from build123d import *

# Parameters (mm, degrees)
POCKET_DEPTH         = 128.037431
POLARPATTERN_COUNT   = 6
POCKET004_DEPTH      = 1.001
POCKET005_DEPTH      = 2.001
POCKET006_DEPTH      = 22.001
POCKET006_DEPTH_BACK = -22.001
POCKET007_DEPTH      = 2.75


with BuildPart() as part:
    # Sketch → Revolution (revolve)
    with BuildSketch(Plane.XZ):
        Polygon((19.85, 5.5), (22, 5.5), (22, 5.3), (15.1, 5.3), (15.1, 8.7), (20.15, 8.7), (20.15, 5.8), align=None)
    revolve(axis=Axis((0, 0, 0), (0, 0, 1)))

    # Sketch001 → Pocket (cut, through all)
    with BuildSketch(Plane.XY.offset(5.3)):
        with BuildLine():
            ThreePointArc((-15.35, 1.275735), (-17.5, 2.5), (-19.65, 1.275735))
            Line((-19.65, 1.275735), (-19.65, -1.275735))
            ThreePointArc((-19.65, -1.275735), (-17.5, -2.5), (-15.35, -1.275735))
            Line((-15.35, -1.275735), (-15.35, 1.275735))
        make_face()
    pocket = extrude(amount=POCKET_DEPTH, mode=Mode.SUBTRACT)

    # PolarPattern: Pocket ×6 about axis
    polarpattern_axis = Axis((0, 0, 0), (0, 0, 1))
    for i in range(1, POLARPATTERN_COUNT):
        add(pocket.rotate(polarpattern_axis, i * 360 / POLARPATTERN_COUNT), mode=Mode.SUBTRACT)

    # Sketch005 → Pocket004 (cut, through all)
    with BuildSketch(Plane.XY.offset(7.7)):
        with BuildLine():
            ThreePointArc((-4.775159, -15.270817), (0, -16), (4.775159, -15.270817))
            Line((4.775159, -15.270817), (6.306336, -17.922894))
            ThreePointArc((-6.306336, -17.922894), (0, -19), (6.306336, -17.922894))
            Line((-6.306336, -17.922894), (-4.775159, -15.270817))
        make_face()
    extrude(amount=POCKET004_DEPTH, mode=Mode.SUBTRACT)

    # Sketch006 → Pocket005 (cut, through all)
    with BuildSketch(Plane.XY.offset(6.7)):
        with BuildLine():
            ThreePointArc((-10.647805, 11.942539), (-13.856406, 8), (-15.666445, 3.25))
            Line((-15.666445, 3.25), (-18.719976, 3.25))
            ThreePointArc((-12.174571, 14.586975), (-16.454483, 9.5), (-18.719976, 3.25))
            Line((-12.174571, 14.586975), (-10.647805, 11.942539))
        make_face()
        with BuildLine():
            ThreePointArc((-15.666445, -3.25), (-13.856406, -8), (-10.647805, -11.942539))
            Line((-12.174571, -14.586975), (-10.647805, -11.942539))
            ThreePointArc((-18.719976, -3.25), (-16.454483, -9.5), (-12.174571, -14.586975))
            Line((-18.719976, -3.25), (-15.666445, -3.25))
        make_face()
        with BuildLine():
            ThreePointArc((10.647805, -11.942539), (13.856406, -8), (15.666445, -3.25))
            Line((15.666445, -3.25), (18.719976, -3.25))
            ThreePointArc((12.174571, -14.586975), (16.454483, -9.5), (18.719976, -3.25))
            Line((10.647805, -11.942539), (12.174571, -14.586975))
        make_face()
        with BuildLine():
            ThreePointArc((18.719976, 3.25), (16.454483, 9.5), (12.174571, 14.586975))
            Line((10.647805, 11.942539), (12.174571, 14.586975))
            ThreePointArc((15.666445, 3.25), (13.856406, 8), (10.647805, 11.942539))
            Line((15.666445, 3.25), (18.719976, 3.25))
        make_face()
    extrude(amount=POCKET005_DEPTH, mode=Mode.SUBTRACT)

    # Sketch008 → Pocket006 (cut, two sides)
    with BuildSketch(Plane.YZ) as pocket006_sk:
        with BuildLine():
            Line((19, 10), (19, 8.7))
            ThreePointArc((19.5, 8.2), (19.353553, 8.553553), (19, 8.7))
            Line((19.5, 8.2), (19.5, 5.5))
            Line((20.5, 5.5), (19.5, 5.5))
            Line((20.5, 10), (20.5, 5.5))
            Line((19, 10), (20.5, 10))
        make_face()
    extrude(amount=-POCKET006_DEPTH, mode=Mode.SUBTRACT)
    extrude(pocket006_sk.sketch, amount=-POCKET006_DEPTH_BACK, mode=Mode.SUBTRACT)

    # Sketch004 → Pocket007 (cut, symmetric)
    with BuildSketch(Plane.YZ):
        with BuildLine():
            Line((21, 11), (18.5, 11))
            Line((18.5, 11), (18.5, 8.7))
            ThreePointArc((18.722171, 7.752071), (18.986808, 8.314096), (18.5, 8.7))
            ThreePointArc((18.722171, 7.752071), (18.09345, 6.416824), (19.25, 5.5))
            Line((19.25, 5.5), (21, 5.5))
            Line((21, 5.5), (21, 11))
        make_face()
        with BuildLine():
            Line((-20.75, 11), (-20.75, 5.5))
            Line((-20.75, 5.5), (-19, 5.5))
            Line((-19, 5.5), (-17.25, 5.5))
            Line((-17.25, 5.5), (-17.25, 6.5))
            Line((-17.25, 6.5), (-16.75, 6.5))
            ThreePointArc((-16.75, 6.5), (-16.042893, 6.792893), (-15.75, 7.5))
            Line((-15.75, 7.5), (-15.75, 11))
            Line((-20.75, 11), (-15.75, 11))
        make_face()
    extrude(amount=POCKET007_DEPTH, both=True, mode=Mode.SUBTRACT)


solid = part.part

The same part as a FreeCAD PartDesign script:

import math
import FreeCAD as App
import Part
import Sketcher

V = App.Vector
Q = App.Units.Quantity

doc = App.newDocument("Part")
body = doc.addObject("PartDesign::Body", "Body")

sketch1 = body.newObject("Sketcher::SketchObject", "Sketch")
sketch1.AttachmentSupport = (doc.getObject("XZ_Plane"), [""])
sketch1.MapMode = "FlatFace"
sketch1.addGeometry([
    Part.LineSegment(V(22, 5.5, 0), V(19.85, 5.5, 0)),
    Part.LineSegment(V(19.85, 5.5, 0), V(20.15, 5.8, 0)),
    Part.LineSegment(V(20.15, 5.8, 0), V(20.15, 8.7, 0)),
    Part.LineSegment(V(20.15, 8.7, 0), V(15.1, 8.7, 0)),
    Part.LineSegment(V(15.1, 8.7, 0), V(15.1, 5.3, 0)),
    Part.LineSegment(V(15.1, 5.3, 0), V(22, 5.3, 0)),
    Part.LineSegment(V(22, 5.3, 0), V(22, 5.5, 0)),
], False)
sketch1.addConstraint([
    Sketcher.Constraint("Coincident", 0, 2, 1, 1),
    Sketcher.Constraint("Coincident", 1, 2, 2, 1),
    Sketcher.Constraint("Coincident", 2, 2, 3, 1),
    Sketcher.Constraint("Coincident", 3, 2, 4, 1),
    Sketcher.Constraint("Coincident", 4, 2, 5, 1),
    Sketcher.Constraint("Coincident", 5, 2, 6, 1),
    Sketcher.Constraint("Coincident", 6, 2, 0, 1),
    Sketcher.Constraint("Horizontal", 0),
    Sketcher.Constraint("Vertical", 2),
    Sketcher.Constraint("Horizontal", 3),
    Sketcher.Constraint("Vertical", 4),
    Sketcher.Constraint("Horizontal", 5),
    Sketcher.Constraint("Vertical", 6),
    Sketcher.Constraint("Angle", 1, Q("45 deg")),
    Sketcher.Constraint("DistanceX", 5, 1, 5, 2, Q("6.9 mm")),
    Sketcher.Constraint("DistanceY", 2, 1, 2, 2, Q("2.9 mm")),
    Sketcher.Constraint("DistanceY", 4, 2, 4, 1, Q("3.4 mm")),
    Sketcher.Constraint("DistanceY", 6, 1, 6, 2, Q("0.2 mm")),
    Sketcher.Constraint("DistanceX", -1, 1, 5, 2, Q("22 mm")),
    Sketcher.Constraint("DistanceX", 0, 2, 0, 1, Q("2.15 mm")),
    Sketcher.Constraint("DistanceY", -1, 1, 0, 2, Q("5.5 mm")),
])
revolution = body.newObject("PartDesign::Revolution", "Revolution")
revolution.Profile = sketch1
revolution.ReferenceAxis = (sketch1, ["V_Axis"])
revolution.Angle = 360

sketch2 = body.newObject("Sketcher::SketchObject", "Sketch001")
sketch2.AttachmentSupport = (doc.getObject("XY_Plane"), [""])
sketch2.MapMode = "FlatFace"
sketch2.AttachmentOffset = App.Placement(V(0, 0, 5.3), App.Rotation())
sketch2.addGeometry([
    Part.ArcOfCircle(Part.Circle(V(-17.5, 0, 0), V(0, 0, 1), 2.5), math.radians(31), math.radians(149)),
    Part.LineSegment(V(-19.6, 1.3, 0), V(-19.6, -1.3, 0)),
    Part.ArcOfCircle(Part.Circle(V(-17.5, 0, 0), V(0, 0, 1), 2.5), math.radians(-149), math.radians(-31)),
    Part.LineSegment(V(-15.3, -1.3, 0), V(-15.3, 1.3, 0)),
], False)
sketch2.addConstraint([
    Sketcher.Constraint("Coincident", 0, 2, 1, 1),
    Sketcher.Constraint("Coincident", 1, 2, 2, 1),
    Sketcher.Constraint("Coincident", 2, 2, 3, 1),
    Sketcher.Constraint("Coincident", 3, 2, 0, 1),
    Sketcher.Constraint("Vertical", 1),
    Sketcher.Constraint("Vertical", 3),
    Sketcher.Constraint("Coincident", 2, 3, 0, 3),
    Sketcher.Constraint("Equal", 0, 2),
    Sketcher.Constraint("PointOnObject", 0, 3, -1),
    Sketcher.Constraint("Horizontal", 1, 2, 2, 2),
    Sketcher.Constraint("Radius", 0, Q("2.5 mm")),
    Sketcher.Constraint("DistanceX", 0, 3, -1, 1, Q("17.5 mm")),
    Sketcher.Constraint("DistanceX", 1, 2, 2, 2, Q("4.3 mm")),
])
pocket1 = body.newObject("PartDesign::Pocket", "Pocket")
pocket1.Profile = sketch2
pocket1.Type = "ThroughAll"
pocket1.Reversed = True
doc.recompute()

polarpattern = body.newObject("PartDesign::PolarPattern", "PolarPattern")
polarpattern.Originals = [pocket1]
polarpattern.Axis = (doc.getObject("Z_Axis"), [""])
polarpattern.Angle = 360
polarpattern.Occurrences = 6
body.Tip = polarpattern

sketch3 = body.newObject("Sketcher::SketchObject", "Sketch002")
sketch3.AttachmentSupport = (doc.getObject("XY_Plane"), [""])
sketch3.MapMode = "FlatFace"
sketch3.AttachmentOffset = App.Placement(V(0, 0, 7.7), App.Rotation())
sketch3.addGeometry([
    Part.ArcOfCircle(Part.Circle(V(0, 0, 0), V(0, 0, 1), 16), math.radians(-107), math.radians(-73)),
    Part.LineSegment(V(-4.8, -15.3, 0), V(-6.3, -17.9, 0)),
    Part.ArcOfCircle(Part.Circle(V(0, 0, 0), V(0, 0, 1), 19), math.radians(-109), math.radians(-71)),
    Part.LineSegment(V(6.3, -17.9, 0), V(4.8, -15.3, 0)),
], False)
sketch3.addConstraint([
    Sketcher.Constraint("Coincident", 0, 1, 1, 1),
    Sketcher.Constraint("Coincident", 1, 2, 2, 1),
    Sketcher.Constraint("Coincident", 2, 2, 3, 1),
    Sketcher.Constraint("Coincident", 3, 2, 0, 2),
    Sketcher.Constraint("Coincident", 0, 3, -1, 1),
    Sketcher.Constraint("Coincident", 2, 3, -1, 1),
    Sketcher.Constraint("Horizontal", 1, 2, 2, 2),
    Sketcher.Constraint("Horizontal", 0, 1, 3, 2),
    Sketcher.Constraint("Radius", 2, Q("19.000001 mm")),
    Sketcher.Constraint("Angle", 1, Q("-119.999994 deg")),
    Sketcher.Constraint("Radius", 0, Q("15.999997 mm")),
    Sketcher.Constraint("DistanceX", 0, 1, -1, 1, Q("4.775159 mm")),
])
pocket2 = body.newObject("PartDesign::Pocket", "Pocket001")
pocket2.Profile = sketch3
pocket2.Type = "ThroughAll"
pocket2.Reversed = True

sketch4 = body.newObject("Sketcher::SketchObject", "Sketch003")
sketch4.AttachmentSupport = (doc.getObject("XY_Plane"), [""])
sketch4.MapMode = "FlatFace"
sketch4.AttachmentOffset = App.Placement(V(0, 0, 6.7), App.Rotation())
sketch4.addGeometry([
    Part.ArcOfCircle(Part.Circle(V(0, 0, 0), V(0, 0, 1), 16), math.radians(132), math.radians(168)),
    Part.LineSegment(V(-10.6, 11.9, 0), V(-12.2, 14.6, 0)),
    Part.ArcOfCircle(Part.Circle(V(0, 0, 0), V(0, 0, 1), 19), math.radians(130), math.radians(170)),
    Part.LineSegment(V(-18.7, 3.2, 0), V(-15.7, 3.2, 0)),
    Part.ArcOfCircle(Part.Circle(V(0, 0, 0), V(0, 0, 1), 16), math.radians(-168), math.radians(-132)),
    Part.LineSegment(V(-15.7, -3.2, 0), V(-18.7, -3.2, 0)),
    Part.ArcOfCircle(Part.Circle(V(0, 0, 0), V(0, 0, 1), 19), math.radians(-170), math.radians(-130)),
    Part.LineSegment(V(-12.2, -14.6, 0), V(-10.6, -11.9, 0)),
    Part.ArcOfCircle(Part.Circle(V(0, 0, 0), V(0, 0, 1), 16), math.radians(-48), math.radians(-12)),
    Part.LineSegment(V(10.6, -11.9, 0), V(12.2, -14.6, 0)),
    Part.ArcOfCircle(Part.Circle(V(0, 0, 0), V(0, 0, 1), 19), math.radians(-50), math.radians(-10)),
    Part.LineSegment(V(18.7, -3.2, 0), V(15.7, -3.2, 0)),
    Part.ArcOfCircle(Part.Circle(V(0, 0, 0), V(0, 0, 1), 19), math.radians(10), math.radians(50)),
    Part.LineSegment(V(12.2, 14.6, 0), V(10.6, 11.9, 0)),
    Part.ArcOfCircle(Part.Circle(V(0, 0, 0), V(0, 0, 1), 16), math.radians(12), math.radians(48)),
    Part.LineSegment(V(15.7, 3.2, 0), V(18.7, 3.2, 0)),
], False)
sketch4.addConstraint([
    Sketcher.Constraint("Coincident", 0, 1, 1, 1),
    Sketcher.Constraint("Coincident", 1, 2, 2, 1),
    Sketcher.Constraint("Coincident", 2, 2, 3, 1),
    Sketcher.Constraint("Coincident", 3, 2, 0, 2),
    Sketcher.Constraint("Coincident", 4, 1, 5, 1),
    Sketcher.Constraint("Coincident", 5, 2, 6, 1),
    Sketcher.Constraint("Coincident", 6, 2, 7, 1),
    Sketcher.Constraint("Coincident", 7, 2, 4, 2),
    Sketcher.Constraint("Coincident", 8, 1, 9, 1),
    Sketcher.Constraint("Coincident", 9, 2, 10, 1),
    Sketcher.Constraint("Coincident", 10, 2, 11, 1),
    Sketcher.Constraint("Coincident", 11, 2, 8, 2),
    Sketcher.Constraint("Coincident", 12, 2, 13, 1),
    Sketcher.Constraint("Coincident", 13, 2, 14, 2),
    Sketcher.Constraint("Coincident", 14, 1, 15, 1),
    Sketcher.Constraint("Coincident", 15, 2, 12, 1),
    Sketcher.Constraint("Horizontal", 3),
    Sketcher.Constraint("Horizontal", 5),
    Sketcher.Constraint("Horizontal", 11),
    Sketcher.Constraint("Horizontal", 15),
    Sketcher.Constraint("Coincident", 0, 3, -1, 1),
    Sketcher.Constraint("Coincident", 2, 3, -1, 1),
    Sketcher.Constraint("Coincident", 4, 3, -1, 1),
    Sketcher.Constraint("Coincident", 6, 3, -1, 1),
    Sketcher.Constraint("Coincident", 8, 3, -1, 1),
    Sketcher.Constraint("Coincident", 10, 3, -1, 1),
    Sketcher.Constraint("Coincident", 12, 3, -1, 1),
    Sketcher.Constraint("Coincident", 14, 3, -1, 1),
    Sketcher.Constraint("Equal", 0, 4),
    Sketcher.Constraint("Equal", 2, 6),
    Sketcher.Constraint("Equal", 4, 8),
    Sketcher.Constraint("Equal", 6, 10),
    Sketcher.Constraint("Equal", 10, 12),
    Sketcher.Constraint("Equal", 8, 14),
    Sketcher.Constraint("Parallel", 1, 9),
    Sketcher.Constraint("Parallel", 7, 13),
    Sketcher.Constraint("Horizontal", 7, 2, 8, 1),
    Sketcher.Constraint("Horizontal", 6, 2, 9, 2),
    Sketcher.Constraint("Horizontal", 5, 2, 10, 2),
    Sketcher.Constraint("Horizontal", 1, 2, 12, 2),
    Sketcher.Constraint("Horizontal", 3, 2, 14, 1),
    Sketcher.Constraint("Vertical", 3, 2, 4, 1),
    Sketcher.Constraint("Vertical", 1, 2, 6, 2),
    Sketcher.Constraint("Radius", 2, Q("19 mm")),
    Sketcher.Constraint("Angle", 1, Q("120.000003 deg")),
    Sketcher.Constraint("DistanceY", 4, 1, 3, 2, Q("6.5 mm")),
    Sketcher.Constraint("Radius", 0, Q("16.000004 mm")),
    Sketcher.Constraint("DistanceX", 0, 1, 8, 3, Q("10.647802 mm")),
])
pocket3 = body.newObject("PartDesign::Pocket", "Pocket002")
pocket3.Profile = sketch4
pocket3.Type = "ThroughAll"
pocket3.Reversed = True

sketch5 = body.newObject("Sketcher::SketchObject", "Sketch004")
sketch5.AttachmentSupport = (doc.getObject("YZ_Plane"), [""])
sketch5.MapMode = "FlatFace"
sketch5.addGeometry([
    Part.LineSegment(V(19, 10, 0), V(19, 8.7, 0)),
    Part.ArcOfCircle(Part.Circle(V(19, 8.2, 0), V(0, 0, 1), 0.5), math.radians(0), math.radians(90)),
    Part.LineSegment(V(19.5, 8.2, 0), V(19.5, 5.5, 0)),
    Part.LineSegment(V(19.5, 5.5, 0), V(20.5, 5.5, 0)),
    Part.LineSegment(V(20.5, 5.5, 0), V(20.5, 10, 0)),
    Part.LineSegment(V(20.5, 10, 0), V(19, 10, 0)),
], False)
sketch5.addConstraint([
    Sketcher.Constraint("Coincident", 0, 2, 1, 2),
    Sketcher.Constraint("Coincident", 1, 1, 2, 1),
    Sketcher.Constraint("Coincident", 2, 2, 3, 1),
    Sketcher.Constraint("Coincident", 3, 2, 4, 1),
    Sketcher.Constraint("Coincident", 4, 2, 5, 1),
    Sketcher.Constraint("Coincident", 5, 2, 0, 1),
    Sketcher.Constraint("Vertical", 0),
    Sketcher.Constraint("Vertical", 2),
    Sketcher.Constraint("Horizontal", 3),
    Sketcher.Constraint("Vertical", 4),
    Sketcher.Constraint("Horizontal", 5),
    Sketcher.Constraint("Vertical", 1, 3, 0, 2),
    Sketcher.Constraint("Radius", 1, Q("0.500001 mm")),
    Sketcher.Constraint("DistanceX", 3, 1, 3, 2, Q("1 mm")),
    Sketcher.Constraint("DistanceY", 0, 2, 0, 1, Q("1.3 mm")),
    Sketcher.Constraint("DistanceY", 2, 2, 2, 1, Q("2.7 mm")),
    Sketcher.Constraint("DistanceY", 4, 1, 4, 2, Q("4.5 mm")),
    Sketcher.Constraint("DistanceX", -1, 1, 1, 3, Q("18.999999 mm")),
    Sketcher.Constraint("DistanceY", -1, 1, 4, 2, Q("10 mm")),
])
pocket4 = body.newObject("PartDesign::Pocket", "Pocket003")
pocket4.Profile = sketch5
pocket4.Type = "ThroughAll"
pocket4.Midplane = True

sketch6 = body.newObject("Sketcher::SketchObject", "Sketch005")
sketch6.AttachmentSupport = (doc.getObject("YZ_Plane"), [""])
sketch6.MapMode = "FlatFace"
sketch6.addGeometry([
    Part.LineSegment(V(21, 11, 0), V(18.5, 11, 0)),
    Part.LineSegment(V(18.5, 11, 0), V(18.5, 8.7, 0)),
    Part.ArcOfCircle(Part.Circle(V(18.5, 8.2, 0), V(0, 0, 1), 0.5), math.radians(-64), math.radians(90)),
    Part.ArcOfCircle(Part.Circle(V(19.2, 6.7, 0), V(0, 0, 1), 1.2), math.radians(116), math.radians(270)),
    Part.LineSegment(V(19.2, 5.5, 0), V(21, 5.5, 0)),
    Part.LineSegment(V(21, 5.5, 0), V(21, 11, 0)),
    Part.LineSegment(V(-20.8, 11, 0), V(-20.8, 5.5, 0)),
    Part.LineSegment(V(-20.8, 5.5, 0), V(-17.2, 5.5, 0)),
    Part.LineSegment(V(-17.2, 5.5, 0), V(-17.2, 6.5, 0)),
    Part.LineSegment(V(-17.2, 6.5, 0), V(-16.8, 6.5, 0)),
    Part.ArcOfCircle(Part.Circle(V(-16.7, 7.5, 0), V(0, 0, 1), 1), math.radians(-90), math.radians(0)),
    Part.LineSegment(V(-15.8, 7.5, 0), V(-15.8, 11, 0)),
    Part.LineSegment(V(-15.8, 11, 0), V(-20.8, 11, 0)),
], False)
sketch6.addConstraint([
    Sketcher.Constraint("Coincident", 0, 2, 1, 1),
    Sketcher.Constraint("Coincident", 1, 2, 2, 2),
    Sketcher.Constraint("Tangent", 2, 1, 3, 1),
    Sketcher.Constraint("Tangent", 3, 2, 4, 1),
    Sketcher.Constraint("Coincident", 4, 2, 5, 1),
    Sketcher.Constraint("Coincident", 5, 2, 0, 1),
    Sketcher.Constraint("Coincident", 6, 2, 7, 1),
    Sketcher.Constraint("Coincident", 7, 2, 8, 1),
    Sketcher.Constraint("Coincident", 8, 2, 9, 1),
    Sketcher.Constraint("Tangent", 9, 2, 10, 1),
    Sketcher.Constraint("Tangent", 10, 2, 11, 1),
    Sketcher.Constraint("Coincident", 11, 2, 12, 1),
    Sketcher.Constraint("Coincident", 12, 2, 6, 1),
    Sketcher.Constraint("Horizontal", 0),
    Sketcher.Constraint("Vertical", 1),
    Sketcher.Constraint("Horizontal", 4),
    Sketcher.Constraint("Vertical", 5),
    Sketcher.Constraint("Vertical", 6),
    Sketcher.Constraint("Horizontal", 7),
    Sketcher.Constraint("Vertical", 8),
    Sketcher.Constraint("Horizontal", 9),
    Sketcher.Constraint("Vertical", 11),
    Sketcher.Constraint("Horizontal", 12),
    Sketcher.Constraint("Horizontal", 4, 2, 6, 2),
    Sketcher.Constraint("Horizontal", 5, 2, 11, 2),
    Sketcher.Constraint("Vertical", 2, 3, 0, 2),
    Sketcher.Constraint("Equal", 7, 11),
    Sketcher.Constraint("Radius", 10, Q("0.999999 mm")),
    Sketcher.Constraint("Radius", 2, Q("0.5 mm")),
    Sketcher.Constraint("DistanceX", 12, 2, 12, 1, Q("5 mm")),
    Sketcher.Constraint("DistanceY", 8, 1, 8, 2, Q("1 mm")),
    Sketcher.Constraint("DistanceX", 0, 2, 0, 1, Q("2.5 mm")),
    Sketcher.Constraint("DistanceX", 7, 1, 7, 2, Q("3.5 mm")),
    Sketcher.Constraint("DistanceY", 1, 2, 1, 1, Q("2.3 mm")),
    Sketcher.Constraint("DistanceY", -1, 1, 0, 2, Q("11 mm")),
    Sketcher.Constraint("DistanceX", -1, 1, 4, 2, Q("21 mm")),
    Sketcher.Constraint("DistanceX", 10, 3, 3, 3, Q("35.999999 mm")),
    Sketcher.Constraint("DistanceX", 4, 1, 4, 2, Q("1.75 mm")),
])
pocket5 = body.newObject("PartDesign::Pocket", "Pocket004")
pocket5.Profile = sketch6
pocket5.Length = 5.5
pocket5.Midplane = True

doc.recompute()
